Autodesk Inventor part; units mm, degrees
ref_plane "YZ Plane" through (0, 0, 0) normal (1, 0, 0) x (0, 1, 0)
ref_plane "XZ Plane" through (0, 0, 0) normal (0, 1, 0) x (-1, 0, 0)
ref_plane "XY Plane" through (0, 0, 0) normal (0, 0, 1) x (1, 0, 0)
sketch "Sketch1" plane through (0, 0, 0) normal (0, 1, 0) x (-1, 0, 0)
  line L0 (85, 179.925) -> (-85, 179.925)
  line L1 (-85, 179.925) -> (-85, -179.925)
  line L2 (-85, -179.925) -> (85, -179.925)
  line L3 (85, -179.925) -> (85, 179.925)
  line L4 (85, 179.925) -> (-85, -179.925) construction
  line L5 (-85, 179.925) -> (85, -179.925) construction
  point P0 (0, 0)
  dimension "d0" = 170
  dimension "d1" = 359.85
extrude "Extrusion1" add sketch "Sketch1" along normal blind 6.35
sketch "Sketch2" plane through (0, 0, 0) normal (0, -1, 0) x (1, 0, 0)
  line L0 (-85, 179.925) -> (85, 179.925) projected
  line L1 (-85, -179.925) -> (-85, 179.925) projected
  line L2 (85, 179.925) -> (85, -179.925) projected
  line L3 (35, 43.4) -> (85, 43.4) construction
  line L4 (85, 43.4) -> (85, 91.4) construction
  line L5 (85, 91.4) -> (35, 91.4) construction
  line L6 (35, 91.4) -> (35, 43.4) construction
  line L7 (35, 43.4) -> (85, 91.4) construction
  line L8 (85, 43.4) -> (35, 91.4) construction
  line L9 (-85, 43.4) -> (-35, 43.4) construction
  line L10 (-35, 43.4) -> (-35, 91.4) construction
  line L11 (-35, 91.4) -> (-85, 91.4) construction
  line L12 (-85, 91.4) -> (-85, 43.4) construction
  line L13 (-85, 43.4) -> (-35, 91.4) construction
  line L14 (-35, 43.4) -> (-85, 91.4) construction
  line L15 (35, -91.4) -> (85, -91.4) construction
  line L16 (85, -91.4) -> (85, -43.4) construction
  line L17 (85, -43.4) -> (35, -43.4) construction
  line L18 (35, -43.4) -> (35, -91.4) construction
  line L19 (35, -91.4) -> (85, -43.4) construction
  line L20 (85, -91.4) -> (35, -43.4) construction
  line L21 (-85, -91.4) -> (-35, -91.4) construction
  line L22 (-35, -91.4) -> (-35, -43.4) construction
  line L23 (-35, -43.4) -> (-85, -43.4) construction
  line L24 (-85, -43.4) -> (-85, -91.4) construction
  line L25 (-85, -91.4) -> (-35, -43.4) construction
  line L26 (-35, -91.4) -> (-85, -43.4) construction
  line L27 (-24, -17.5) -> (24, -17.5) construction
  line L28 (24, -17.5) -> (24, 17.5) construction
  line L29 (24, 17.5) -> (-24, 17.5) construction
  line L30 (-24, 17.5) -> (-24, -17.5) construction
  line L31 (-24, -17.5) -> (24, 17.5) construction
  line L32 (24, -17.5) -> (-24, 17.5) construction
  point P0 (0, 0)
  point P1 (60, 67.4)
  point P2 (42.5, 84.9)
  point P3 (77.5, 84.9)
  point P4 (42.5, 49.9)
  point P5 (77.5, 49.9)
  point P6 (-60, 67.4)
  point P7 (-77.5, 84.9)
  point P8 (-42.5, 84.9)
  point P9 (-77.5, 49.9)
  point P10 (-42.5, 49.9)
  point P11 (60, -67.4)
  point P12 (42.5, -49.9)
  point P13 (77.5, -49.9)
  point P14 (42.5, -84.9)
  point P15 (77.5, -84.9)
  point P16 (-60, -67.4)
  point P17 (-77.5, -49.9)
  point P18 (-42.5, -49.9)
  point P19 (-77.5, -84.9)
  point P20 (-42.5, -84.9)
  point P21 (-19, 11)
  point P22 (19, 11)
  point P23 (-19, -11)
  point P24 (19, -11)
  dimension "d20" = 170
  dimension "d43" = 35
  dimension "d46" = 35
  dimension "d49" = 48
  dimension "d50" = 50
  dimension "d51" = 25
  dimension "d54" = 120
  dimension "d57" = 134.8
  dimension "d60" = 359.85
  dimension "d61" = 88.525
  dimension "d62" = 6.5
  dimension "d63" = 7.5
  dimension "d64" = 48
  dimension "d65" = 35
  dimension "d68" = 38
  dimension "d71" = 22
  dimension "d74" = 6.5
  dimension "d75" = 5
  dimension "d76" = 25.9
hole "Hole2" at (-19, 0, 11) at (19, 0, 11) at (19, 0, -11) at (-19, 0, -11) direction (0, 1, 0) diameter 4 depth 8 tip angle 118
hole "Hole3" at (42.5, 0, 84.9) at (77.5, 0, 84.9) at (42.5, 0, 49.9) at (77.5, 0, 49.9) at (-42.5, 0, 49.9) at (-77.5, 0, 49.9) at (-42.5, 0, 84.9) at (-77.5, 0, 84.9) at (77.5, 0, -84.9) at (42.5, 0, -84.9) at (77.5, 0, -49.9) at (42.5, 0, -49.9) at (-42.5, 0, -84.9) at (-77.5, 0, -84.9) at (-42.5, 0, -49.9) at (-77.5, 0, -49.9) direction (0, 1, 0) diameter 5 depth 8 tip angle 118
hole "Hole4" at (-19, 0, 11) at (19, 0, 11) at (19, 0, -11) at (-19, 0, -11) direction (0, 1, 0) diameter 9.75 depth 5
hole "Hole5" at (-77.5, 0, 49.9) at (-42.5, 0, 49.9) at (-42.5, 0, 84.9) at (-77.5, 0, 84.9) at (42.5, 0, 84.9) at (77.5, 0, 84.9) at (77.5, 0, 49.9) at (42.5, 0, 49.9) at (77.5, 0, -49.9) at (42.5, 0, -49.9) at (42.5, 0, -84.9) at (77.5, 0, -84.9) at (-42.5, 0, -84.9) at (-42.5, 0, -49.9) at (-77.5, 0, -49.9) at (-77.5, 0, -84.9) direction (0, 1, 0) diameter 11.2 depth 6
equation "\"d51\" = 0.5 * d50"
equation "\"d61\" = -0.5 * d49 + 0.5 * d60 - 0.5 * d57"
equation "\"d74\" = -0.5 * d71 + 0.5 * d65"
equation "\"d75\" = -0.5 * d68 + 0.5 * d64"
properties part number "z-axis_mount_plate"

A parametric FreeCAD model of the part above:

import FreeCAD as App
import Part
import Sketcher
Q = App.Units.Quantity


def add_polygon(sketch, points):
    """Adds a closed chain of lines whose ends are joined by coincident constraints."""
    first, n = sketch.GeometryCount, len(points)
    for a, b in zip(points, points[1:] + points[:1]):
        sketch.addGeometry(Part.LineSegment(App.Vector(*a, 0), App.Vector(*b, 0)), False)
    for i in range(n):
        sketch.addConstraint(Sketcher.Constraint("Coincident", first + i, 2, first + (i + 1) % n, 1))

doc = App.newDocument("Part")
params = doc.addObject("Spreadsheet::Sheet", "Params")
for row, (alias, value) in enumerate([
    ("sketch1_width", "170 mm"),
    ("sketch1_height", "359.85 mm"),
    ("pad1_length", "6.35 mm"),
    ("sketch2_diameter", "4 mm"),
    ("hole_diameter", "4 mm"),
    ("hole_depth", "8 mm"),
    ("sketch3_diameter", "5 mm"),
    ("hole2_diameter", "5 mm"),
    ("hole2_depth", "8 mm"),
    ("sketch4_diameter", "9.75 mm"),
    ("hole3_diameter", "9.75 mm"),
    ("hole3_depth", "5 mm"),
    ("sketch5_diameter", "11.2 mm"),
    ("hole4_diameter", "11.2 mm"),
    ("hole4_depth", "6 mm"),
], start=1):
    params.set(f"A{row}", alias)
    params.set(f"B{row}", "=" + value)
    params.setAlias(f"B{row}", alias)

body = doc.addObject("PartDesign::Body", "Body")

# Sketch on XZ plane
sketch1 = body.newObject("Sketcher::SketchObject", "Sketch")
sketch1.AttachmentSupport = (doc.getObject("XZ_Plane"), [""])
sketch1.MapMode = "FlatFace"
add_polygon(sketch1, [(-85, -180), (-85, 180), (85, 180), (85, -180)])  # lines 0-3
sketch1.addConstraint([
    Sketcher.Constraint("Vertical", 0),
    Sketcher.Constraint("Horizontal", 1),
    Sketcher.Constraint("Vertical", 2),
    Sketcher.Constraint("Horizontal", 3),
    Sketcher.Constraint("Symmetric", 0, 2, 2, 2, -1, 1),
    Sketcher.Constraint("DistanceX", 1, 1, 1, 2, Q("170 mm")),
    Sketcher.Constraint("DistanceY", 0, 1, 0, 2, Q("359.85 mm")),
])
sketch1.setExpression("Constraints[9]", "Params.sketch1_width")
sketch1.setExpression("Constraints[10]", "Params.sketch1_height")
pad1 = body.newObject("PartDesign::Pad", "Pad")
pad1.Profile = sketch1
pad1.setExpression("Length", "Params.pad1_length")
pad1.Reversed = True

# Sketch on XZ plane
sketch2 = body.newObject("Sketcher::SketchObject", "Sketch001")
sketch2.AttachmentSupport = (doc.getObject("XZ_Plane"), [""])
sketch2.MapMode = "FlatFace"
sketch2.addGeometry([
    Part.Circle(App.Vector(-19, 11, 0), App.Vector(0, 0, 1), 2),
    Part.Circle(App.Vector(19, 11, 0), App.Vector(0, 0, 1), 2),
    Part.Circle(App.Vector(19, -11, 0), App.Vector(0, 0, 1), 2),
    Part.Circle(App.Vector(-19, -11, 0), App.Vector(0, 0, 1), 2),
], False)
sketch2.addConstraint([
    Sketcher.Constraint("Equal", 0, 1),
    Sketcher.Constraint("Equal", 1, 2),
    Sketcher.Constraint("Equal", 2, 3),
    Sketcher.Constraint("Symmetric", 0, 3, 2, 3, -1, 1),
    Sketcher.Constraint("Symmetric", 1, 3, 3, 3, -1, 1),
    Sketcher.Constraint("Symmetric", 0, 3, 1, 3, -2),
    Sketcher.Constraint("Diameter", 0, Q("4 mm")),
    Sketcher.Constraint("DistanceX", 0, 3, -1, 1, Q("19 mm")),
    Sketcher.Constraint("DistanceY", -1, 1, 0, 3, Q("11 mm")),
])
sketch2.setExpression("Constraints[6]", "Params.sketch2_diameter")
doc.recompute()
hole = body.newObject("PartDesign::Hole", "Hole")
hole.Profile = sketch2
hole.ThreadType = "None"
hole.setExpression("Diameter", "Params.hole_diameter")
hole.DepthType = "Dimension"
hole.setExpression("Depth", "Params.hole_depth")
hole.DrillPoint = "Angled"
hole.DrillPointAngle = 118

# Sketch on XZ plane
sketch3 = body.newObject("Sketcher::SketchObject", "Sketch002")
sketch3.AttachmentSupport = (doc.getObject("XZ_Plane"), [""])
sketch3.MapMode = "FlatFace"
sketch3.addGeometry([
    Part.Circle(App.Vector(42.5, 84.9, 0), App.Vector(0, 0, 1), 2.5),  # 0
    Part.Circle(App.Vector(77.5, 84.9, 0), App.Vector(0, 0, 1), 2.5),  # 1
    Part.Circle(App.Vector(42.5, 49.9, 0), App.Vector(0, 0, 1), 2.5),  # 2
    Part.Circle(App.Vector(77.5, 49.9, 0), App.Vector(0, 0, 1), 2.5),  # 3
    Part.Circle(App.Vector(-42.5, 49.9, 0), App.Vector(0, 0, 1), 2.5),  # 4
    Part.Circle(App.Vector(-77.5, 49.9, 0), App.Vector(0, 0, 1), 2.5),  # 5
    Part.Circle(App.Vector(-42.5, 84.9, 0), App.Vector(0, 0, 1), 2.5),  # 6
    Part.Circle(App.Vector(-77.5, 84.9, 0), App.Vector(0, 0, 1), 2.5),  # 7
    Part.Circle(App.Vector(77.5, -84.9, 0), App.Vector(0, 0, 1), 2.5),  # 8
    Part.Circle(App.Vector(42.5, -84.9, 0), App.Vector(0, 0, 1), 2.5),  # 9
    Part.Circle(App.Vector(77.5, -49.9, 0), App.Vector(0, 0, 1), 2.5),  # 10
    Part.Circle(App.Vector(42.5, -49.9, 0), App.Vector(0, 0, 1), 2.5),  # 11
    Part.Circle(App.Vector(-42.5, -84.9, 0), App.Vector(0, 0, 1), 2.5),  # 12
    Part.Circle(App.Vector(-77.5, -84.9, 0), App.Vector(0, 0, 1), 2.5),  # 13
    Part.Circle(App.Vector(-42.5, -49.9, 0), App.Vector(0, 0, 1), 2.5),  # 14
    Part.Circle(App.Vector(-77.5, -49.9, 0), App.Vector(0, 0, 1), 2.5),  # 15
], False)
sketch3.addConstraint([
    Sketcher.Constraint("Equal", 0, 1),
    Sketcher.Constraint("Equal", 1, 2),
    Sketcher.Constraint("Equal", 2, 3),
    Sketcher.Constraint("Equal", 3, 4),
    Sketcher.Constraint("Equal", 4, 5),
    Sketcher.Constraint("Equal", 5, 6),
    Sketcher.Constraint("Equal", 6, 7),
    Sketcher.Constraint("Equal", 7, 8),
    Sketcher.Constraint("Equal", 8, 9),
    Sketcher.Constraint("Equal", 9, 10),
    Sketcher.Constraint("Equal", 10, 11),
    Sketcher.Constraint("Equal", 11, 12),
    Sketcher.Constraint("Equal", 12, 13),
    Sketcher.Constraint("Equal", 13, 14),
    Sketcher.Constraint("Equal", 14, 15),
    Sketcher.Constraint("Symmetric", 7, 3, 8, 3, -1, 1),
    Sketcher.Constraint("Symmetric", 6, 3, 9, 3, -1, 1),
    Sketcher.Constraint("Symmetric", 5, 3, 10, 3, -1, 1),
    Sketcher.Constraint("Symmetric", 4, 3, 11, 3, -1, 1),
    Sketcher.Constraint("Symmetric", 0, 3, 12, 3, -1, 1),
    Sketcher.Constraint("Symmetric", 1, 3, 13, 3, -1, 1),
    Sketcher.Constraint("Symmetric", 2, 3, 14, 3, -1, 1),
    Sketcher.Constraint("Symmetric", 3, 3, 15, 3, -1, 1),
    Sketcher.Constraint("Symmetric", 2, 3, 4, 3, -2),
    Sketcher.Constraint("Symmetric", 3, 3, 5, 3, -2),
    Sketcher.Constraint("Symmetric", 0, 3, 6, 3, -2),
    Sketcher.Constraint("Symmetric", 1, 3, 7, 3, -2),
    Sketcher.Constraint("Horizontal", 0, 3, 1, 3),
    Sketcher.Constraint("Horizontal", 2, 3, 3, 3),
    Sketcher.Constraint("Vertical", 0, 3, 2, 3),
    Sketcher.Constraint("Vertical", 1, 3, 3, 3),
    Sketcher.Constraint("Diameter", 0, Q("5 mm")),
    Sketcher.Constraint("DistanceX", 0, 3, 1, 3, Q("35 mm")),
    Sketcher.Constraint("DistanceY", 2, 3, 0, 3, Q("35 mm")),
    Sketcher.Constraint("DistanceX", 4, 3, 2, 3, Q("85 mm")),
    Sketcher.Constraint("DistanceY", -1, 1, 0, 3, Q("84.9 mm")),
])
sketch3.setExpression("Constraints[31]", "Params.sketch3_diameter")
doc.recompute()
hole2 = body.newObject("PartDesign::Hole", "Hole001")
hole2.Profile = sketch3
hole2.ThreadType = "None"
hole2.setExpression("Diameter", "Params.hole2_diameter")
hole2.DepthType = "Dimension"
hole2.setExpression("Depth", "Params.hole2_depth")
hole2.DrillPoint = "Angled"
hole2.DrillPointAngle = 118

# Sketch on XZ plane
sketch4 = body.newObject("Sketcher::SketchObject", "Sketch003")
sketch4.AttachmentSupport = (doc.getObject("XZ_Plane"), [""])
sketch4.MapMode = "FlatFace"
sketch4.addGeometry([
    Part.Circle(App.Vector(-19, 11, 0), App.Vector(0, 0, 1), 4.9),
    Part.Circle(App.Vector(19, 11, 0), App.Vector(0, 0, 1), 4.9),
    Part.Circle(App.Vector(19, -11, 0), App.Vector(0, 0, 1), 4.9),
    Part.Circle(App.Vector(-19, -11, 0), App.Vector(0, 0, 1), 4.9),
], False)
sketch4.addConstraint([
    Sketcher.Constraint("Equal", 0, 1),
    Sketcher.Constraint("Equal", 1, 2),
    Sketcher.Constraint("Equal", 2, 3),
    Sketcher.Constraint("Symmetric", 0, 3, 2, 3, -1, 1),
    Sketcher.Constraint("Symmetric", 1, 3, 3, 3, -1, 1),
    Sketcher.Constraint("Symmetric", 0, 3, 1, 3, -2),
    Sketcher.Constraint("Diameter", 0, Q("9.75 mm")),
    Sketcher.Constraint("DistanceX", 0, 3, -1, 1, Q("19 mm")),
    Sketcher.Constraint("DistanceY", -1, 1, 0, 3, Q("11 mm")),
])
sketch4.setExpression("Constraints[6]", "Params.sketch4_diameter")
doc.recompute()
hole3 = body.newObject("PartDesign::Hole", "Hole002")
hole3.Profile = sketch4
hole3.ThreadType = "None"
hole3.setExpression("Diameter", "Params.hole3_diameter")
hole3.DepthType = "Dimension"
hole3.setExpression("Depth", "Params.hole3_depth")
hole3.DrillPoint = "Flat"

# Sketch on XZ plane
sketch5 = body.newObject("Sketcher::SketchObject", "Sketch004")
sketch5.AttachmentSupport = (doc.getObject("XZ_Plane"), [""])
sketch5.MapMode = "FlatFace"
sketch5.addGeometry([
    Part.Circle(App.Vector(-78, 50, 0), App.Vector(0, 0, 1), 6),  # 0
    Part.Circle(App.Vector(-42, 50, 0), App.Vector(0, 0, 1), 6),  # 1
    Part.Circle(App.Vector(-42, 85, 0), App.Vector(0, 0, 1), 6),  # 2
    Part.Circle(App.Vector(-78, 85, 0), App.Vector(0, 0, 1), 6),  # 3
    Part.Circle(App.Vector(42, 85, 0), App.Vector(0, 0, 1), 6),  # 4
    Part.Circle(App.Vector(78, 85, 0), App.Vector(0, 0, 1), 6),  # 5
    Part.Circle(App.Vector(78, 50, 0), App.Vector(0, 0, 1), 6),  # 6
    Part.Circle(App.Vector(42, 50, 0), App.Vector(0, 0, 1), 6),  # 7
    Part.Circle(App.Vector(78, -50, 0), App.Vector(0, 0, 1), 6),  # 8
    Part.Circle(App.Vector(42, -50, 0), App.Vector(0, 0, 1), 6),  # 9
    Part.Circle(App.Vector(42, -85, 0), App.Vector(0, 0, 1), 6),  # 10
    Part.Circle(App.Vector(78, -85, 0), App.Vector(0, 0, 1), 6),  # 11
    Part.Circle(App.Vector(-42, -85, 0), App.Vector(0, 0, 1), 6),  # 12
    Part.Circle(App.Vector(-42, -50, 0), App.Vector(0, 0, 1), 6),  # 13
    Part.Circle(App.Vector(-78, -50, 0), App.Vector(0, 0, 1), 6),  # 14
    Part.Circle(App.Vector(-78, -85, 0), App.Vector(0, 0, 1), 6),  # 15
], False)
sketch5.addConstraint([
    Sketcher.Constraint("Equal", 0, 1),
    Sketcher.Constraint("Equal", 1, 2),
    Sketcher.Constraint("Equal", 2, 3),
    Sketcher.Constraint("Equal", 3, 4),
    Sketcher.Constraint("Equal", 4, 5),
    Sketcher.Constraint("Equal", 5, 6),
    Sketcher.Constraint("Equal", 6, 7),
    Sketcher.Constraint("Equal", 7, 8),
    Sketcher.Constraint("Equal", 8, 9),
    Sketcher.Constraint("Equal", 9, 10),
    Sketcher.Constraint("Equal", 10, 11),
    Sketcher.Constraint("Equal", 11, 12),
    Sketcher.Constraint("Equal", 12, 13),
    Sketcher.Constraint("Equal", 13, 14),
    Sketcher.Constraint("Equal", 14, 15),
    Sketcher.Constraint("Symmetric", 0, 3, 8, 3, -1, 1),
    Sketcher.Constraint("Symmetric", 1, 3, 9, 3, -1, 1),
    Sketcher.Constraint("Symmetric", 2, 3, 10, 3, -1, 1),
    Sketcher.Constraint("Symmetric", 3, 3, 11, 3, -1, 1),
    Sketcher.Constraint("Symmetric", 4, 3, 12, 3, -1, 1),
    Sketcher.Constraint("Symmetric", 7, 3, 13, 3, -1, 1),
    Sketcher.Constraint("Symmetric", 6, 3, 14, 3, -1, 1),
    Sketcher.Constraint("Symmetric", 5, 3, 15, 3, -1, 1),
    Sketcher.Constraint("Symmetric", 2, 3, 4, 3, -2),
    Sketcher.Constraint("Symmetric", 3, 3, 5, 3, -2),
    Sketcher.Constraint("Symmetric", 0, 3, 6, 3, -2),
    Sketcher.Constraint("Symmetric", 1, 3, 7, 3, -2),
    Sketcher.Constraint("Horizontal", 0, 3, 1, 3),
    Sketcher.Constraint("Horizontal", 2, 3, 3, 3),
    Sketcher.Constraint("Vertical", 1, 3, 2, 3),
    Sketcher.Constraint("Vertical", 0, 3, 3, 3),
    Sketcher.Constraint("Diameter", 0, Q("11.2 mm")),
    Sketcher.Constraint("DistanceX", 0, 3, 1, 3, Q("35 mm")),
    Sketcher.Constraint("DistanceY", 1, 3, 2, 3, Q("35 mm")),
    Sketcher.Constraint("DistanceX", 2, 3, 4, 3, Q("85 mm")),
    Sketcher.Constraint("DistanceY", -1, 1, 0, 3, Q("49.9 mm")),
])
sketch5.setExpression("Constraints[31]", "Params.sketch5_diameter")
doc.recompute()
hole4 = body.newObject("PartDesign::Hole", "Hole003")
hole4.Profile = sketch5
hole4.ThreadType = "None"
hole4.setExpression("Diameter", "Params.hole4_diameter")
hole4.DepthType = "Dimension"
hole4.setExpression("Depth", "Params.hole4_depth")
hole4.DrillPoint = "Flat"

doc.recompute()
